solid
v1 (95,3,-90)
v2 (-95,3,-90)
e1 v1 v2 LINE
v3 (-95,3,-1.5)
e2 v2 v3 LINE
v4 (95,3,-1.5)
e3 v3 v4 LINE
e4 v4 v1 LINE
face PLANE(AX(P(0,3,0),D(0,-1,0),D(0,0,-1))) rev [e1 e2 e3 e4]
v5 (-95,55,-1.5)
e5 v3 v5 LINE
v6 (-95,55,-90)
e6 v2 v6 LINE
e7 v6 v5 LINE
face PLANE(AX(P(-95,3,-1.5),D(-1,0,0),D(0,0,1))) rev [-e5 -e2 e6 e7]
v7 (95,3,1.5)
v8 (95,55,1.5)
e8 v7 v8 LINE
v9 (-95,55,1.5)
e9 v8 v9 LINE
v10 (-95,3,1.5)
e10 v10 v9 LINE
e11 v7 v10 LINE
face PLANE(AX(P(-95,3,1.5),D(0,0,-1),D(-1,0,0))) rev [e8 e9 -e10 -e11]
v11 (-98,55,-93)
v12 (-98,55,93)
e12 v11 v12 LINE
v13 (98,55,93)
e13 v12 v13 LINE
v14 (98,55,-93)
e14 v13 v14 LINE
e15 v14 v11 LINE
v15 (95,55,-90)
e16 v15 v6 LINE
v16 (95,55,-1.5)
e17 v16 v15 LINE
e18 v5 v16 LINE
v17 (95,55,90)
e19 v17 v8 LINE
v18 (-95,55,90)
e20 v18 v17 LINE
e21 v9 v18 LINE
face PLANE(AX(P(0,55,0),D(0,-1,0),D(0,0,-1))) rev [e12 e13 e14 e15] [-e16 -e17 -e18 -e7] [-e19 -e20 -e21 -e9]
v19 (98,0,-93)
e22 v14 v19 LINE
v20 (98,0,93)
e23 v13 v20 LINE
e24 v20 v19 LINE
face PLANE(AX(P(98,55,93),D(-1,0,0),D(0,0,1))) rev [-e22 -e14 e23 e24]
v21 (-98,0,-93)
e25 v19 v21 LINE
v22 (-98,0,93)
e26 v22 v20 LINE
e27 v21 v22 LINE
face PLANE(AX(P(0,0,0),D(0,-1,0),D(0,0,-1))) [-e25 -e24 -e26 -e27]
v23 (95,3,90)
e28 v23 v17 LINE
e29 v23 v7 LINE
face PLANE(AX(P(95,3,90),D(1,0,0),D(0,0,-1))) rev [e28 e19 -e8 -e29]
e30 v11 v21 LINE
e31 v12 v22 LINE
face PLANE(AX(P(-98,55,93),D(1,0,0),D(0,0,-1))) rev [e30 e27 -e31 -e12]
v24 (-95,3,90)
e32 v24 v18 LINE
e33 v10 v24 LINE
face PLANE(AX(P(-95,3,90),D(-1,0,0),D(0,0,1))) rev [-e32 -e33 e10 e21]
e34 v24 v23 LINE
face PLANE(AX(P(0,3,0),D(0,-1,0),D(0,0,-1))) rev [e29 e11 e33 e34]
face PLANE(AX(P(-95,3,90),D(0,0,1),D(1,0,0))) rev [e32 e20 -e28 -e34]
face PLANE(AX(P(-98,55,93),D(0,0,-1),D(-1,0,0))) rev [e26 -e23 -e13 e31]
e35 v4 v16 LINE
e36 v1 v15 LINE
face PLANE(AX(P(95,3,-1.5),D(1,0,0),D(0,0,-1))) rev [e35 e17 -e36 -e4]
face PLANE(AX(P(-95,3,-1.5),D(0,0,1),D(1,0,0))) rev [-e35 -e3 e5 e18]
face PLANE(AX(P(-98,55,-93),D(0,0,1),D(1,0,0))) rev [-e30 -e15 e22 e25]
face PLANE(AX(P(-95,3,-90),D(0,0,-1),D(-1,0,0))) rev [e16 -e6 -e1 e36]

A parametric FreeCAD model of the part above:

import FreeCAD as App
import Part
import Sketcher
Q = App.Units.Quantity


def add_polygon(sketch, points):
    """Adds a closed chain of lines whose ends are joined by coincident constraints."""
    first, n = sketch.GeometryCount, len(points)
    for a, b in zip(points, points[1:] + points[:1]):
        sketch.addGeometry(Part.LineSegment(App.Vector(*a, 0), App.Vector(*b, 0)), False)
    for i in range(n):
        sketch.addConstraint(Sketcher.Constraint("Coincident", first + i, 2, first + (i + 1) % n, 1))

doc = App.newDocument("Part")
params = doc.addObject("Spreadsheet::Sheet", "Params")
for row, (alias, value) in enumerate([
    ("sketch1_width", "196 mm"),
    ("sketch1_height", "186 mm"),
    ("pad1_length", "55 mm"),
    ("sketch2_width", "190 mm"),
    ("sketch2_height", "88.5 mm"),
    ("pocket1_length", "52 mm"),
], start=1):
    params.set(f"A{row}", alias)
    params.set(f"B{row}", "=" + value)
    params.setAlias(f"B{row}", alias)

body = doc.addObject("PartDesign::Body", "Body")

sketch1 = doc.addObject("Sketcher::SketchObject", "Sketch")
body.addObject(sketch1)
sketch1.AttachmentSupport = (doc.XZ_Plane, [""])
sketch1.MapMode = "FlatFace"
add_polygon(sketch1, [(-98, -93), (-98, 93), (98, 93), (98, -93)])
sketch1.addConstraint(Sketcher.Constraint("Vertical", 0))
sketch1.addConstraint(Sketcher.Constraint("Horizontal", 1))
sketch1.addConstraint(Sketcher.Constraint("Vertical", 2))
sketch1.addConstraint(Sketcher.Constraint("Horizontal", 3))
sketch1.addConstraint(Sketcher.Constraint("Symmetric", 0, 2, 2, 2, -1, 1))
sketch1.addConstraint(Sketcher.Constraint("DistanceX", 1, 1, 1, 2, Q("196 mm")))
sketch1.addConstraint(Sketcher.Constraint("DistanceY", 0, 1, 0, 2, Q("186 mm")))
sketch1.setExpression("Constraints[9]", "Params.sketch1_width")
sketch1.setExpression("Constraints[10]", "Params.sketch1_height")
pad1 = doc.addObject("PartDesign::Pad", "Pad")
body.addObject(pad1)
pad1.Profile = sketch1
pad1.setExpression("Length", "Params.pad1_length")
pad1.Reversed = True

sketch2 = doc.addObject("Sketcher::SketchObject", "Sketch001")
body.addObject(sketch2)
sketch2.AttachmentSupport = (doc.XZ_Plane, [""])
sketch2.MapMode = "FlatFace"
sketch2.AttachmentOffset = App.Placement(App.Vector(0, 0, -55), App.Rotation())
add_polygon(sketch2, [(-95, 1.5), (-95, 90), (95, 90), (95, 1.5)])
add_polygon(sketch2, [(-95, -90), (-95, -1.5), (95, -1.5), (95, -90)])
sketch2.addConstraint(Sketcher.Constraint("Vertical", 0))
sketch2.addConstraint(Sketcher.Constraint("Horizontal", 1))
sketch2.addConstraint(Sketcher.Constraint("Vertical", 2))
sketch2.addConstraint(Sketcher.Constraint("Horizontal", 3))
sketch2.addConstraint(Sketcher.Constraint("Vertical", 4))
sketch2.addConstraint(Sketcher.Constraint("Horizontal", 5))
sketch2.addConstraint(Sketcher.Constraint("Vertical", 6))
sketch2.addConstraint(Sketcher.Constraint("Horizontal", 7))
sketch2.addConstraint(Sketcher.Constraint("Symmetric", 2, 2, 4, 2, -1, 1))
sketch2.addConstraint(Sketcher.Constraint("Symmetric", 0, 2, 6, 2, -1, 1))
sketch2.addConstraint(Sketcher.Constraint("Vertical", 3, 2, 4, 2))
sketch2.addConstraint(Sketcher.Constraint("DistanceX", 1, 1, 1, 2, Q("190 mm")))
sketch2.addConstraint(Sketcher.Constraint("DistanceY", 0, 1, 0, 2, Q("88.5 mm")))
sketch2.addConstraint(Sketcher.Constraint("DistanceY", -1, 1, 0, 2, Q("90 mm")))
sketch2.setExpression("Constraints[19]", "Params.sketch2_width")
sketch2.setExpression("Constraints[20]", "Params.sketch2_height")
pocket1 = doc.addObject("PartDesign::Pocket", "Pocket")
body.addObject(pocket1)
pocket1.Profile = sketch2
pocket1.setExpression("Length", "Params.pocket1_length")
pocket1.Reversed = True

doc.recompute()
